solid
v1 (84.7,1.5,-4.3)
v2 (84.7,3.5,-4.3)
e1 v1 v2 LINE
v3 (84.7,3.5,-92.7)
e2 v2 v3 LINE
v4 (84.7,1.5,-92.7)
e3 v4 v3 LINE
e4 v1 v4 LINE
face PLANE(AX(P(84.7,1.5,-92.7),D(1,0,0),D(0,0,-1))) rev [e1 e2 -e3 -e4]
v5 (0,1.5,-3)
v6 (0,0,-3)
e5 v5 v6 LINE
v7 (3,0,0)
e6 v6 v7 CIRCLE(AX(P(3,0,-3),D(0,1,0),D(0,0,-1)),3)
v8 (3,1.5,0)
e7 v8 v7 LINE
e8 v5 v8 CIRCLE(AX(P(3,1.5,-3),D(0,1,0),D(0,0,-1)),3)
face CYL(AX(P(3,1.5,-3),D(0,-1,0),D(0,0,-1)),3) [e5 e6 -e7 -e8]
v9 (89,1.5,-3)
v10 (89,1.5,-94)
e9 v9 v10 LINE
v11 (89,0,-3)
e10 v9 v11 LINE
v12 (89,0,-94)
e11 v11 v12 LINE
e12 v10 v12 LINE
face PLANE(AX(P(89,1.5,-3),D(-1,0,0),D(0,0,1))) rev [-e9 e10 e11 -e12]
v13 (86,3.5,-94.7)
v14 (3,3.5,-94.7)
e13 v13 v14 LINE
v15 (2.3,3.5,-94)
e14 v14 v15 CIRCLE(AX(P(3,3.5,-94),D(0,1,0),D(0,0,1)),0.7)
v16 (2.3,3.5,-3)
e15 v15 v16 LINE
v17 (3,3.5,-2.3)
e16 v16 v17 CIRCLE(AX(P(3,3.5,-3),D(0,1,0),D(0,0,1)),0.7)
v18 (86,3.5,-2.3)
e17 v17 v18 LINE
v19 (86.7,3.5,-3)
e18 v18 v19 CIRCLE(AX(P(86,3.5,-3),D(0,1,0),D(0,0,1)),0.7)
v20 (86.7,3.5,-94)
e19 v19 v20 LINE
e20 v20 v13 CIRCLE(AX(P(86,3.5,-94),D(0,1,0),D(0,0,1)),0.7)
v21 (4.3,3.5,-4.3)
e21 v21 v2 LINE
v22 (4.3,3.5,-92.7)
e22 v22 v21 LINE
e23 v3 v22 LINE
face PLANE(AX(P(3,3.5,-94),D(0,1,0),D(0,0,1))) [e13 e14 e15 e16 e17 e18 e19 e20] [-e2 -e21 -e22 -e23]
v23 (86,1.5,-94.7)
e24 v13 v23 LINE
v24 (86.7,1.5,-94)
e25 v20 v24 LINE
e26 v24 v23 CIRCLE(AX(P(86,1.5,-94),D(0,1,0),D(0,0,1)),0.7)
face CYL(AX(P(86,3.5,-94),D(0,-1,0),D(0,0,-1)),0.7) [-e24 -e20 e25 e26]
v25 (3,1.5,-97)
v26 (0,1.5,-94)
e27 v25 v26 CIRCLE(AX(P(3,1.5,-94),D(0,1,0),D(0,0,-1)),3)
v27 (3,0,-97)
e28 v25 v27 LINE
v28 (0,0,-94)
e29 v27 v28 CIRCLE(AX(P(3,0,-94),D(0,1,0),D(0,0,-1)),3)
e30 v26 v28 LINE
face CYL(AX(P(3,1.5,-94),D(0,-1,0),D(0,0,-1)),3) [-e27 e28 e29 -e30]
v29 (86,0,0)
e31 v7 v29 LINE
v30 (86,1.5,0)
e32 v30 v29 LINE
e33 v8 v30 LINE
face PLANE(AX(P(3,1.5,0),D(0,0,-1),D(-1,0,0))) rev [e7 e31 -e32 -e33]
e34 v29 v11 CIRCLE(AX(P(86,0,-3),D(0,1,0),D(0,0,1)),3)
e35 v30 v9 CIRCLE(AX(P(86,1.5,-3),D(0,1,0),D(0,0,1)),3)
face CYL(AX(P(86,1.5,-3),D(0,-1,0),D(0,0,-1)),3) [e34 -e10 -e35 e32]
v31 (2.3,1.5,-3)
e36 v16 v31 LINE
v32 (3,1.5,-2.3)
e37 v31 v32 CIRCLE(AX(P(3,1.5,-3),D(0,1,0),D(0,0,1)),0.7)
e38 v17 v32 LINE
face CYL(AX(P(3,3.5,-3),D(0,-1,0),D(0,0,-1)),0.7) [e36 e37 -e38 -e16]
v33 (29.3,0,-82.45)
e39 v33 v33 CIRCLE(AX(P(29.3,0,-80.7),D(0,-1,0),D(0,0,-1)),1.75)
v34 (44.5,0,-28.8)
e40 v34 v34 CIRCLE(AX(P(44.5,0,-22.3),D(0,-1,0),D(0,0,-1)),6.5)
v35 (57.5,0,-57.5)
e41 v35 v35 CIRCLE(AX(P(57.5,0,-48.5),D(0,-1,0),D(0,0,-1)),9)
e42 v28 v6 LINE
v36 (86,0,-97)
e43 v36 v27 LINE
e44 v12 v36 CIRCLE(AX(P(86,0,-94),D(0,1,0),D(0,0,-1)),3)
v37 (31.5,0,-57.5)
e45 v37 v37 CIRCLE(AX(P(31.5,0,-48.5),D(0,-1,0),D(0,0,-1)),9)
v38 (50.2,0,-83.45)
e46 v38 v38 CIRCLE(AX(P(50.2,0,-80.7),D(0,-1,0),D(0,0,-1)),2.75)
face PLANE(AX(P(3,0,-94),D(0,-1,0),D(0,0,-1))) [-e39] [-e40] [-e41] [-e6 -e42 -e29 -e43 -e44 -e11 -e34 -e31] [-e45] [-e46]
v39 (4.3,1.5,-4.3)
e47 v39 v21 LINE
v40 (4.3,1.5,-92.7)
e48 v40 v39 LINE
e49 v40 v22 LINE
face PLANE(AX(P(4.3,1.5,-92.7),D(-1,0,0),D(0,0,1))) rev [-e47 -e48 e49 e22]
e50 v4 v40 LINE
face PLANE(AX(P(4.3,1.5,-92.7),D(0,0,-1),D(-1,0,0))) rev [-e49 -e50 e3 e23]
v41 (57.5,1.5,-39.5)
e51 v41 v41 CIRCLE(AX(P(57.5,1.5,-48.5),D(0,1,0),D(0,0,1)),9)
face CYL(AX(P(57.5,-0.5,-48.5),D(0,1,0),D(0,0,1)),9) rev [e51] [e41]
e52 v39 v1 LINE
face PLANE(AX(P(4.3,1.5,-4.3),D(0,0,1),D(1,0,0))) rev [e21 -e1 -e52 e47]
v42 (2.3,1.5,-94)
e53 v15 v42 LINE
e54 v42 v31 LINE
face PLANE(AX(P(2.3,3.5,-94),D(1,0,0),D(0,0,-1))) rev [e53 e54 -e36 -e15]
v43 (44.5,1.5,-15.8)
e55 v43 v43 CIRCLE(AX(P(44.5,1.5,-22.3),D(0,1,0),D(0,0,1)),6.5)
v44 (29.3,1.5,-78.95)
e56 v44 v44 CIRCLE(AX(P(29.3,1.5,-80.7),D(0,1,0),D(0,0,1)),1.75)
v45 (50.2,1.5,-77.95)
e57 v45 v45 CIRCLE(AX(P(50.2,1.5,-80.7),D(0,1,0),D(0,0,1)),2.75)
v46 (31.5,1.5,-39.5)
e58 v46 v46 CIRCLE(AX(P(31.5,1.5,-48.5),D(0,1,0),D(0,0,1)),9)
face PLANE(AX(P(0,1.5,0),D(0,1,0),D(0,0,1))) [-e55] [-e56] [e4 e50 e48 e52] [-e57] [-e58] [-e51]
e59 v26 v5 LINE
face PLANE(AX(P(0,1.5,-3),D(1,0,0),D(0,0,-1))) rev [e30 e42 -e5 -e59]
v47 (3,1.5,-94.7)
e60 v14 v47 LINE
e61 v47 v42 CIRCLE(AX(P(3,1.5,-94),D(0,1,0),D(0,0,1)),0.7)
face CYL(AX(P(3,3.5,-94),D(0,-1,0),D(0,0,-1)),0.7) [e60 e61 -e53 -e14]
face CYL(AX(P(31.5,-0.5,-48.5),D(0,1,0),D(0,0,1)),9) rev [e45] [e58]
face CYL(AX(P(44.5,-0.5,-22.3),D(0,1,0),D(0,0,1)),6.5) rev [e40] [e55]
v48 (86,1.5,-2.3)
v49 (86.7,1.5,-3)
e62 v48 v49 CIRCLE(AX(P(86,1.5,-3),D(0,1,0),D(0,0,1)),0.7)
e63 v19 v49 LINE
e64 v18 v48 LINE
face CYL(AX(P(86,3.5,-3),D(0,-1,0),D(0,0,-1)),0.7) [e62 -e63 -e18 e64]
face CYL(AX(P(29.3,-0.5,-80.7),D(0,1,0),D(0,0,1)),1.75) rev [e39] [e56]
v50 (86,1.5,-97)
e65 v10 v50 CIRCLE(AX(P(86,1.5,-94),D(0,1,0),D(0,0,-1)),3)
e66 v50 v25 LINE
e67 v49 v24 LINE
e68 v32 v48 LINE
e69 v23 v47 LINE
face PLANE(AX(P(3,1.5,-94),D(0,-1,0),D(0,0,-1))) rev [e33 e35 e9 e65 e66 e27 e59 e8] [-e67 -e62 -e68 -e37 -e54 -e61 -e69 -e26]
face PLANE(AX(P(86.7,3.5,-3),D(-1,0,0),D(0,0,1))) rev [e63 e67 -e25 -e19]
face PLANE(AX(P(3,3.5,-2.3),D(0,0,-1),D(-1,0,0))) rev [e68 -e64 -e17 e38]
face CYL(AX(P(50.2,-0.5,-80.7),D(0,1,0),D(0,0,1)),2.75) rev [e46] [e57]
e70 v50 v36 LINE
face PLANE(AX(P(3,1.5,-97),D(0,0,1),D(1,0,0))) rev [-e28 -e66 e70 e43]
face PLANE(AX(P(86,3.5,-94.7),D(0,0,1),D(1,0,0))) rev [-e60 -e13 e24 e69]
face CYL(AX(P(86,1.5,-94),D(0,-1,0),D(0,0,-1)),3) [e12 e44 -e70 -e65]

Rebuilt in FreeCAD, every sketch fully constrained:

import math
import FreeCAD as App
import Part
import Sketcher
Q = App.Units.Quantity

doc = App.newDocument("Part")
body = doc.addObject("PartDesign::Body", "Body")

# Sketch on XZ plane
sketch1 = doc.addObject("Sketcher::SketchObject", "Sketch")
body.addObject(sketch1)
sketch1.AttachmentSupport = (doc.XZ_Plane, [""])
sketch1.MapMode = "FlatFace"
sketch1.addGeometry([
    Part.LineSegment(App.Vector(3, 0, 0), App.Vector(86, 0, 0)),  # 0
    Part.ArcOfCircle(Part.Circle(App.Vector(86, -3, 0), App.Vector(0, 0, 1), 3), math.radians(0), math.radians(90)),  # 1
    Part.LineSegment(App.Vector(89, -3, 0), App.Vector(89, -94, 0)),  # 2
    Part.ArcOfCircle(Part.Circle(App.Vector(86, -94, 0), App.Vector(0, 0, 1), 3), math.radians(-90), math.radians(0)),  # 3
    Part.LineSegment(App.Vector(86, -97, 0), App.Vector(3, -97, 0)),  # 4
    Part.ArcOfCircle(Part.Circle(App.Vector(3, -94, 0), App.Vector(0, 0, 1), 3), math.radians(180), math.radians(270)),  # 5
    Part.LineSegment(App.Vector(0, -94, 0), App.Vector(0, -3, 0)),  # 6
    Part.ArcOfCircle(Part.Circle(App.Vector(3, -3, 0), App.Vector(0, 0, 1), 3), math.radians(90), math.radians(180)),  # 7
], False)
sketch1.addConstraint([
    Sketcher.Constraint("Tangent", 0, 2, 1, 2),
    Sketcher.Constraint("Tangent", 1, 1, 2, 1),
    Sketcher.Constraint("Tangent", 2, 2, 3, 2),
    Sketcher.Constraint("Tangent", 3, 1, 4, 1),
    Sketcher.Constraint("Tangent", 4, 2, 5, 2),
    Sketcher.Constraint("Tangent", 5, 1, 6, 1),
    Sketcher.Constraint("Tangent", 6, 2, 7, 2),
    Sketcher.Constraint("Tangent", 7, 1, 0, 1),
    Sketcher.Constraint("Horizontal", 0),
    Sketcher.Constraint("Vertical", 2),
    Sketcher.Constraint("Horizontal", 4),
    Sketcher.Constraint("Vertical", 6),
    Sketcher.Constraint("Equal", 1, 3),
    Sketcher.Constraint("Equal", 3, 5),
    Sketcher.Constraint("Equal", 5, 7),
    Sketcher.Constraint("PointOnObject", 0, 2, -1),
    Sketcher.Constraint("PointOnObject", 5, 1, -2),
    Sketcher.Constraint("Radius", 1, Q("3 mm")),
    Sketcher.Constraint("DistanceX", 0, 1, 0, 2, Q("83 mm")),
    Sketcher.Constraint("DistanceY", 2, 2, 2, 1, Q("91 mm")),
])
pad1 = doc.addObject("PartDesign::Pad", "Pad")
body.addObject(pad1)
pad1.Profile = sketch1
pad1.Length = 1.5
pad1.Reversed = True

# Sketch on XZ plane
sketch2 = doc.addObject("Sketcher::SketchObject", "Sketch001")
body.addObject(sketch2)
sketch2.AttachmentSupport = (doc.XZ_Plane, [""])
sketch2.MapMode = "FlatFace"
sketch2.AttachmentOffset = App.Placement(App.Vector(0, 0, -1.5), App.Rotation())
sketch2.addGeometry([
    Part.LineSegment(App.Vector(2.3, -94, 0), App.Vector(2.3, -3, 0)),  # 0
    Part.ArcOfCircle(Part.Circle(App.Vector(3, -3, 0), App.Vector(0, 0, 1), 0.7), math.radians(90), math.radians(180)),  # 1
    Part.LineSegment(App.Vector(3, -2.3, 0), App.Vector(86, -2.3, 0)),  # 2
    Part.ArcOfCircle(Part.Circle(App.Vector(86, -3, 0), App.Vector(0, 0, 1), 0.7), math.radians(0), math.radians(90)),  # 3
    Part.LineSegment(App.Vector(86.7, -3, 0), App.Vector(86.7, -94, 0)),  # 4
    Part.ArcOfCircle(Part.Circle(App.Vector(86, -94, 0), App.Vector(0, 0, 1), 0.7), math.radians(-90), math.radians(0)),  # 5
    Part.LineSegment(App.Vector(86, -94.7, 0), App.Vector(3, -94.7, 0)),  # 6
    Part.ArcOfCircle(Part.Circle(App.Vector(3, -94, 0), App.Vector(0, 0, 1), 0.7), math.radians(180), math.radians(270)),  # 7
], False)
sketch2.addConstraint([
    Sketcher.Constraint("Tangent", 0, 2, 1, 2),
    Sketcher.Constraint("Tangent", 1, 1, 2, 1),
    Sketcher.Constraint("Tangent", 2, 2, 3, 2),
    Sketcher.Constraint("Tangent", 3, 1, 4, 1),
    Sketcher.Constraint("Tangent", 4, 2, 5, 2),
    Sketcher.Constraint("Tangent", 5, 1, 6, 1),
    Sketcher.Constraint("Tangent", 6, 2, 7, 2),
    Sketcher.Constraint("Tangent", 7, 1, 0, 1),
    Sketcher.Constraint("Vertical", 0),
    Sketcher.Constraint("Horizontal", 2),
    Sketcher.Constraint("Vertical", 4),
    Sketcher.Constraint("Horizontal", 6),
    Sketcher.Constraint("Equal", 1, 3),
    Sketcher.Constraint("Equal", 3, 5),
    Sketcher.Constraint("Equal", 5, 7),
    Sketcher.Constraint("Radius", 1, Q("0.7 mm")),
    Sketcher.Constraint("DistanceX", 2, 1, 2, 2, Q("83 mm")),
    Sketcher.Constraint("DistanceY", 0, 1, 0, 2, Q("91 mm")),
    Sketcher.Constraint("DistanceX", -1, 1, 1, 3, Q("3 mm")),
    Sketcher.Constraint("DistanceY", 1, 3, -1, 1, Q("3 mm")),
])
pad2 = doc.addObject("PartDesign::Pad", "Pad001")
body.addObject(pad2)
pad2.Profile = sketch2
pad2.Length = 2
pad2.Reversed = True

# Sketch on XZ plane
sketch3 = doc.addObject("Sketcher::SketchObject", "Sketch002")
body.addObject(sketch3)
sketch3.AttachmentSupport = (doc.XZ_Plane, [""])
sketch3.MapMode = "FlatFace"
sketch3.AttachmentOffset = App.Placement(App.Vector(0, 0, -3.5), App.Rotation())
sketch3.addGeometry([
    Part.LineSegment(App.Vector(4, -93, 0), App.Vector(4, -4, 0)),
    Part.LineSegment(App.Vector(4, -4, 0), App.Vector(85, -4, 0)),
    Part.LineSegment(App.Vector(85, -4, 0), App.Vector(85, -93, 0)),
    Part.LineSegment(App.Vector(85, -93, 0), App.Vector(4, -93, 0)),
], False)
sketch3.addConstraint([
    Sketcher.Constraint("Coincident", 0, 2, 1, 1),
    Sketcher.Constraint("Coincident", 1, 2, 2, 1),
    Sketcher.Constraint("Coincident", 2, 2, 3, 1),
    Sketcher.Constraint("Coincident", 3, 2, 0, 1),
    Sketcher.Constraint("Vertical", 0),
    Sketcher.Constraint("Horizontal", 1),
    Sketcher.Constraint("Vertical", 2),
    Sketcher.Constraint("Horizontal", 3),
    Sketcher.Constraint("DistanceX", 1, 1, 1, 2, Q("80.4 mm")),
    Sketcher.Constraint("DistanceY", 0, 1, 0, 2, Q("88.4 mm")),
    Sketcher.Constraint("DistanceX", -1, 1, 0, 2, Q("4.3 mm")),
    Sketcher.Constraint("DistanceY", 0, 2, -1, 1, Q("4.3 mm")),
])
pocket1 = doc.addObject("PartDesign::Pocket", "Pocket")
body.addObject(pocket1)
pocket1.Profile = sketch3
pocket1.Length = 2
pocket1.Reversed = True

# Sketch on XZ plane
sketch4 = doc.addObject("Sketcher::SketchObject", "Sketch003")
body.addObject(sketch4)
sketch4.AttachmentSupport = (doc.XZ_Plane, [""])
sketch4.MapMode = "FlatFace"
sketch4.AttachmentOffset = App.Placement(App.Vector(0, 0, -1.5), App.Rotation())
sketch4.addGeometry([
    Part.Circle(App.Vector(32, -48, 0), App.Vector(0, 0, 1), 9),
    Part.Circle(App.Vector(58, -48, 0), App.Vector(0, 0, 1), 9),
], False)
sketch4.addConstraint([
    Sketcher.Constraint("Equal", 0, 1),
    Sketcher.Constraint("Horizontal", 0, 3, 1, 3),
    Sketcher.Constraint("Diameter", 0, Q("18 mm")),
    Sketcher.Constraint("DistanceX", 0, 3, 1, 3, Q("26 mm")),
    Sketcher.Constraint("DistanceX", -1, 1, 0, 3, Q("31.5 mm")),
    Sketcher.Constraint("DistanceY", 0, 3, -1, 1, Q("48.5 mm")),
])
pocket2 = doc.addObject("PartDesign::Pocket", "Pocket001")
body.addObject(pocket2)
pocket2.Profile = sketch4
pocket2.Length = 2
pocket2.Reversed = True

# Sketch on XZ plane
sketch5 = doc.addObject("Sketcher::SketchObject", "Sketch004")
body.addObject(sketch5)
sketch5.AttachmentSupport = (doc.XZ_Plane, [""])
sketch5.MapMode = "FlatFace"
sketch5.AttachmentOffset = App.Placement(App.Vector(0, 0, -1.5), App.Rotation())
sketch5.addGeometry([
    Part.Circle(App.Vector(29.3, -80.7, 0), App.Vector(0, 0, 1), 1.8),
    Part.Circle(App.Vector(50.2, -80.7, 0), App.Vector(0, 0, 1), 2.8),
], False)
sketch5.addConstraint([
    Sketcher.Constraint("Horizontal", 0, 3, 1, 3),
    Sketcher.Constraint("Diameter", 0, Q("3.5 mm")),
    Sketcher.Constraint("Diameter", 1, Q("5.5 mm")),
    Sketcher.Constraint("DistanceX", -1, 1, 0, 3, Q("29.3 mm")),
    Sketcher.Constraint("DistanceY", 0, 3, -1, 1, Q("80.7 mm")),
    Sketcher.Constraint("DistanceX", -1, 1, 1, 3, Q("50.2 mm")),
])
pocket3 = doc.addObject("PartDesign::Pocket", "Pocket002")
body.addObject(pocket3)
pocket3.Profile = sketch5
pocket3.Length = 2
pocket3.Reversed = True

# Sketch on XZ plane
sketch6 = doc.addObject("Sketcher::SketchObject", "Sketch005")
body.addObject(sketch6)
sketch6.AttachmentSupport = (doc.XZ_Plane, [""])
sketch6.MapMode = "FlatFace"
sketch6.AttachmentOffset = App.Placement(App.Vector(0, 0, -1.5), App.Rotation())
sketch6.addGeometry(Part.Circle(App.Vector(44, -22, 0), App.Vector(0, 0, 1), 6), False)
sketch6.addConstraint([
    Sketcher.Constraint("Diameter", 0, Q("13 mm")),
    Sketcher.Constraint("DistanceX", -1, 1, 0, 3, Q("44.5 mm")),
    Sketcher.Constraint("DistanceY", 0, 3, -1, 1, Q("22.3 mm")),
])
pocket4 = doc.addObject("PartDesign::Pocket", "Pocket003")
body.addObject(pocket4)
pocket4.Profile = sketch6
pocket4.Length = 2
pocket4.Reversed = True

doc.recompute()
